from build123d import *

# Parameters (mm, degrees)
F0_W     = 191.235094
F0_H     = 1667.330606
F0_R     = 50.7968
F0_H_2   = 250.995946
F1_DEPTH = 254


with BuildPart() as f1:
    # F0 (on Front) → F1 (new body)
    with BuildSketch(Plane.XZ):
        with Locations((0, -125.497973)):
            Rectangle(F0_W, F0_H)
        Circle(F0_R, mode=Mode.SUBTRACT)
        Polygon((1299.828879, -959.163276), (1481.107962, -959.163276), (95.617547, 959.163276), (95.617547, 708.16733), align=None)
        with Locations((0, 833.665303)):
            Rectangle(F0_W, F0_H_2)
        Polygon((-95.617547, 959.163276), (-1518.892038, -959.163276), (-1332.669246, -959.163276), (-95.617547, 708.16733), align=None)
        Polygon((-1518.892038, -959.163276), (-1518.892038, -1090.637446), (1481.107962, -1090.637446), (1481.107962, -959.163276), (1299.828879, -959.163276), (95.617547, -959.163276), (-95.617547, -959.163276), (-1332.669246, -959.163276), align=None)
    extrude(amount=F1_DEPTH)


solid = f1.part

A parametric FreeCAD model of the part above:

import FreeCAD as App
import Part
import Sketcher

V = App.Vector

doc = App.newDocument("Part")
body = doc.addObject("PartDesign::Body", "Body")

# Sketch on XZ plane
sketch1 = body.newObject("Sketcher::SketchObject", "Sketch")
sketch1.AttachmentSupport = (doc.getObject("XZ_Plane"), [""])
sketch1.MapMode = "FlatFace"
sketch1.addGeometry([
    Part.LineSegment(V(1481.107962, -959.163276, 0), V(95.617547, 959.163276, 0)),  # 0
    Part.LineSegment(V(95.617547, 959.163276, 0), V(-95.617547, 959.163276, 0)),  # 1
    Part.LineSegment(V(-95.617547, 959.163276, 0), V(-1518.892038, -959.163276, 0)),  # 2
    Part.LineSegment(V(-1518.892038, -959.163276, 0), V(-1518.892038, -1090.637446, 0)),  # 3
    Part.LineSegment(V(-1518.892038, -1090.637446, 0), V(1481.107962, -1090.637446, 0)),  # 4
    Part.LineSegment(V(1481.107962, -1090.637446, 0), V(1481.107962, -959.163276, 0)),  # 5
    Part.LineSegment(V(95.617547, -959.163276, 0), V(95.617547, 708.16733, 0)),  # 6
    Part.LineSegment(V(95.617547, 708.16733, 0), V(1299.828879, -959.163276, 0)),  # 7
    Part.LineSegment(V(1299.828879, -959.163276, 0), V(95.617547, -959.163276, 0)),  # 8
    Part.LineSegment(V(-1332.669246, -959.163276, 0), V(-95.617547, 708.16733, 0)),  # 9
    Part.LineSegment(V(-95.617547, 708.16733, 0), V(-95.617547, -959.163276, 0)),  # 10
    Part.LineSegment(V(-95.617547, -959.163276, 0), V(-1332.669246, -959.163276, 0)),  # 11
    Part.Circle(V(0, 0, 0), V(0, 0, 1), 50.7968),  # 12
], False)
sketch1.addConstraint([
    Sketcher.Constraint("Coincident", 0, 2, 1, 1),
    Sketcher.Constraint("Coincident", 1, 2, 2, 1),
    Sketcher.Constraint("Coincident", 2, 2, 3, 1),
    Sketcher.Constraint("Coincident", 3, 2, 4, 1),
    Sketcher.Constraint("Coincident", 4, 2, 5, 1),
    Sketcher.Constraint("Coincident", 5, 2, 0, 1),
    Sketcher.Constraint("Coincident", 6, 2, 7, 1),
    Sketcher.Constraint("Coincident", 7, 2, 8, 1),
    Sketcher.Constraint("Coincident", 8, 2, 6, 1),
    Sketcher.Constraint("Coincident", 9, 2, 10, 1),
    Sketcher.Constraint("Coincident", 10, 2, 11, 1),
    Sketcher.Constraint("Coincident", 11, 2, 9, 1),
    Sketcher.Constraint("Horizontal", 1),
    Sketcher.Constraint("Vertical", 3),
    Sketcher.Constraint("Horizontal", 4),
    Sketcher.Constraint("Vertical", 5),
    Sketcher.Constraint("Vertical", 6),
    Sketcher.Constraint("Horizontal", 8),
    Sketcher.Constraint("Vertical", 10),
    Sketcher.Constraint("Horizontal", 11),
    Sketcher.Constraint("Coincident", 12, 3, -1, 1),
    Sketcher.Constraint("DistanceX", 4, 1, 4, 2, 3000.0),
    Sketcher.Constraint("Diameter", 12, 101.5936),
    Sketcher.Constraint("Distance", 2, 2388.657999),
    Sketcher.Constraint("DistanceX", 11, 2, 11, 1, 1237.051699),
    Sketcher.Constraint("DistanceX", 8, 2, 8, 1, 1204.211332),
    Sketcher.Constraint("DistanceY", 3, 2, 3, 1, 131.47417),
    Sketcher.Constraint("DistanceY", 5, 1, 5, 2, 131.47417),
    Sketcher.Constraint("Distance", 0, 2366.33904),
    Sketcher.Constraint("Distance", 7, 2056.724649),
    Sketcher.Constraint("Distance", 9, 2076.123372),
    Sketcher.Constraint("DistanceX", 1, 2, 1, 1, 191.235094),
    Sketcher.Constraint("DistanceX", 2, 2, -1, 1, 1518.892038),
    Sketcher.Constraint("DistanceY", -1, 1, 6, 2, 708.16733),
    Sketcher.Constraint("DistanceX", -1, 1, 7, 2, 1299.828879),
    Sketcher.Constraint("DistanceY", -1, 1, 9, 2, 708.16733),
    Sketcher.Constraint("DistanceY", 4, 2, 7, 2, 131.47417),
    Sketcher.Constraint("DistanceX", 2, 2, 10, 2, 1423.274491),
])
pad1 = body.newObject("PartDesign::Pad", "Pad")
pad1.Profile = sketch1
pad1.Length = 254

doc.recompute()
